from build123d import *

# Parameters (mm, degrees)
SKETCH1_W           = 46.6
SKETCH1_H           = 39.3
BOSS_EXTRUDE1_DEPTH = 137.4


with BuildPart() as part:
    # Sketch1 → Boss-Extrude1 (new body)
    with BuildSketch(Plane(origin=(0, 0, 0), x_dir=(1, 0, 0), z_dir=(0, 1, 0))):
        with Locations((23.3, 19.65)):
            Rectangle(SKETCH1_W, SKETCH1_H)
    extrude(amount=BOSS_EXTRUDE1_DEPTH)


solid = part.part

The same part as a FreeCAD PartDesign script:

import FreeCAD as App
import Part
import Sketcher
Q = App.Units.Quantity


def add_polygon(sketch, points):
    """Adds a closed chain of lines whose ends are joined by coincident constraints."""
    first, n = sketch.GeometryCount, len(points)
    for a, b in zip(points, points[1:] + points[:1]):
        sketch.addGeometry(Part.LineSegment(App.Vector(*a, 0), App.Vector(*b, 0)), False)
    for i in range(n):
        sketch.addConstraint(Sketcher.Constraint("Coincident", first + i, 2, first + (i + 1) % n, 1))

doc = App.newDocument("Part")
params = doc.addObject("Spreadsheet::Sheet", "Params")
for row, (alias, value) in enumerate([
    ("sketch1_width", "46.6 mm"),
    ("sketch1_height", "39.3 mm"),
    ("pad1_length", "137.4 mm"),
], start=1):
    params.set(f"A{row}", alias)
    params.set(f"B{row}", "=" + value)
    params.setAlias(f"B{row}", alias)

body = doc.addObject("PartDesign::Body", "Body")

# Sketch on XZ plane
sketch1 = doc.addObject("Sketcher::SketchObject", "Sketch")
body.addObject(sketch1)
sketch1.AttachmentSupport = (doc.XZ_Plane, [""])
sketch1.MapMode = "FlatFace"
add_polygon(sketch1, [(0, -39), (0, 0), (47, 0), (47, -39)])  # lines 0-3
sketch1.addConstraint([
    Sketcher.Constraint("Vertical", 0),
    Sketcher.Constraint("Horizontal", 1),
    Sketcher.Constraint("Vertical", 2),
    Sketcher.Constraint("Horizontal", 3),
    Sketcher.Constraint("Coincident", 0, 2, -1, 1),
    Sketcher.Constraint("DistanceX", 1, 1, 1, 2, Q("46.6 mm")),
    Sketcher.Constraint("DistanceY", 0, 1, 0, 2, Q("39.3 mm")),
])
sketch1.setExpression("Constraints[9]", "Params.sketch1_width")
sketch1.setExpression("Constraints[10]", "Params.sketch1_height")
pad1 = doc.addObject("PartDesign::Pad", "Pad")
body.addObject(pad1)
pad1.Profile = sketch1
pad1.setExpression("Length", "Params.pad1_length")
pad1.Reversed = True

doc.recompute()
